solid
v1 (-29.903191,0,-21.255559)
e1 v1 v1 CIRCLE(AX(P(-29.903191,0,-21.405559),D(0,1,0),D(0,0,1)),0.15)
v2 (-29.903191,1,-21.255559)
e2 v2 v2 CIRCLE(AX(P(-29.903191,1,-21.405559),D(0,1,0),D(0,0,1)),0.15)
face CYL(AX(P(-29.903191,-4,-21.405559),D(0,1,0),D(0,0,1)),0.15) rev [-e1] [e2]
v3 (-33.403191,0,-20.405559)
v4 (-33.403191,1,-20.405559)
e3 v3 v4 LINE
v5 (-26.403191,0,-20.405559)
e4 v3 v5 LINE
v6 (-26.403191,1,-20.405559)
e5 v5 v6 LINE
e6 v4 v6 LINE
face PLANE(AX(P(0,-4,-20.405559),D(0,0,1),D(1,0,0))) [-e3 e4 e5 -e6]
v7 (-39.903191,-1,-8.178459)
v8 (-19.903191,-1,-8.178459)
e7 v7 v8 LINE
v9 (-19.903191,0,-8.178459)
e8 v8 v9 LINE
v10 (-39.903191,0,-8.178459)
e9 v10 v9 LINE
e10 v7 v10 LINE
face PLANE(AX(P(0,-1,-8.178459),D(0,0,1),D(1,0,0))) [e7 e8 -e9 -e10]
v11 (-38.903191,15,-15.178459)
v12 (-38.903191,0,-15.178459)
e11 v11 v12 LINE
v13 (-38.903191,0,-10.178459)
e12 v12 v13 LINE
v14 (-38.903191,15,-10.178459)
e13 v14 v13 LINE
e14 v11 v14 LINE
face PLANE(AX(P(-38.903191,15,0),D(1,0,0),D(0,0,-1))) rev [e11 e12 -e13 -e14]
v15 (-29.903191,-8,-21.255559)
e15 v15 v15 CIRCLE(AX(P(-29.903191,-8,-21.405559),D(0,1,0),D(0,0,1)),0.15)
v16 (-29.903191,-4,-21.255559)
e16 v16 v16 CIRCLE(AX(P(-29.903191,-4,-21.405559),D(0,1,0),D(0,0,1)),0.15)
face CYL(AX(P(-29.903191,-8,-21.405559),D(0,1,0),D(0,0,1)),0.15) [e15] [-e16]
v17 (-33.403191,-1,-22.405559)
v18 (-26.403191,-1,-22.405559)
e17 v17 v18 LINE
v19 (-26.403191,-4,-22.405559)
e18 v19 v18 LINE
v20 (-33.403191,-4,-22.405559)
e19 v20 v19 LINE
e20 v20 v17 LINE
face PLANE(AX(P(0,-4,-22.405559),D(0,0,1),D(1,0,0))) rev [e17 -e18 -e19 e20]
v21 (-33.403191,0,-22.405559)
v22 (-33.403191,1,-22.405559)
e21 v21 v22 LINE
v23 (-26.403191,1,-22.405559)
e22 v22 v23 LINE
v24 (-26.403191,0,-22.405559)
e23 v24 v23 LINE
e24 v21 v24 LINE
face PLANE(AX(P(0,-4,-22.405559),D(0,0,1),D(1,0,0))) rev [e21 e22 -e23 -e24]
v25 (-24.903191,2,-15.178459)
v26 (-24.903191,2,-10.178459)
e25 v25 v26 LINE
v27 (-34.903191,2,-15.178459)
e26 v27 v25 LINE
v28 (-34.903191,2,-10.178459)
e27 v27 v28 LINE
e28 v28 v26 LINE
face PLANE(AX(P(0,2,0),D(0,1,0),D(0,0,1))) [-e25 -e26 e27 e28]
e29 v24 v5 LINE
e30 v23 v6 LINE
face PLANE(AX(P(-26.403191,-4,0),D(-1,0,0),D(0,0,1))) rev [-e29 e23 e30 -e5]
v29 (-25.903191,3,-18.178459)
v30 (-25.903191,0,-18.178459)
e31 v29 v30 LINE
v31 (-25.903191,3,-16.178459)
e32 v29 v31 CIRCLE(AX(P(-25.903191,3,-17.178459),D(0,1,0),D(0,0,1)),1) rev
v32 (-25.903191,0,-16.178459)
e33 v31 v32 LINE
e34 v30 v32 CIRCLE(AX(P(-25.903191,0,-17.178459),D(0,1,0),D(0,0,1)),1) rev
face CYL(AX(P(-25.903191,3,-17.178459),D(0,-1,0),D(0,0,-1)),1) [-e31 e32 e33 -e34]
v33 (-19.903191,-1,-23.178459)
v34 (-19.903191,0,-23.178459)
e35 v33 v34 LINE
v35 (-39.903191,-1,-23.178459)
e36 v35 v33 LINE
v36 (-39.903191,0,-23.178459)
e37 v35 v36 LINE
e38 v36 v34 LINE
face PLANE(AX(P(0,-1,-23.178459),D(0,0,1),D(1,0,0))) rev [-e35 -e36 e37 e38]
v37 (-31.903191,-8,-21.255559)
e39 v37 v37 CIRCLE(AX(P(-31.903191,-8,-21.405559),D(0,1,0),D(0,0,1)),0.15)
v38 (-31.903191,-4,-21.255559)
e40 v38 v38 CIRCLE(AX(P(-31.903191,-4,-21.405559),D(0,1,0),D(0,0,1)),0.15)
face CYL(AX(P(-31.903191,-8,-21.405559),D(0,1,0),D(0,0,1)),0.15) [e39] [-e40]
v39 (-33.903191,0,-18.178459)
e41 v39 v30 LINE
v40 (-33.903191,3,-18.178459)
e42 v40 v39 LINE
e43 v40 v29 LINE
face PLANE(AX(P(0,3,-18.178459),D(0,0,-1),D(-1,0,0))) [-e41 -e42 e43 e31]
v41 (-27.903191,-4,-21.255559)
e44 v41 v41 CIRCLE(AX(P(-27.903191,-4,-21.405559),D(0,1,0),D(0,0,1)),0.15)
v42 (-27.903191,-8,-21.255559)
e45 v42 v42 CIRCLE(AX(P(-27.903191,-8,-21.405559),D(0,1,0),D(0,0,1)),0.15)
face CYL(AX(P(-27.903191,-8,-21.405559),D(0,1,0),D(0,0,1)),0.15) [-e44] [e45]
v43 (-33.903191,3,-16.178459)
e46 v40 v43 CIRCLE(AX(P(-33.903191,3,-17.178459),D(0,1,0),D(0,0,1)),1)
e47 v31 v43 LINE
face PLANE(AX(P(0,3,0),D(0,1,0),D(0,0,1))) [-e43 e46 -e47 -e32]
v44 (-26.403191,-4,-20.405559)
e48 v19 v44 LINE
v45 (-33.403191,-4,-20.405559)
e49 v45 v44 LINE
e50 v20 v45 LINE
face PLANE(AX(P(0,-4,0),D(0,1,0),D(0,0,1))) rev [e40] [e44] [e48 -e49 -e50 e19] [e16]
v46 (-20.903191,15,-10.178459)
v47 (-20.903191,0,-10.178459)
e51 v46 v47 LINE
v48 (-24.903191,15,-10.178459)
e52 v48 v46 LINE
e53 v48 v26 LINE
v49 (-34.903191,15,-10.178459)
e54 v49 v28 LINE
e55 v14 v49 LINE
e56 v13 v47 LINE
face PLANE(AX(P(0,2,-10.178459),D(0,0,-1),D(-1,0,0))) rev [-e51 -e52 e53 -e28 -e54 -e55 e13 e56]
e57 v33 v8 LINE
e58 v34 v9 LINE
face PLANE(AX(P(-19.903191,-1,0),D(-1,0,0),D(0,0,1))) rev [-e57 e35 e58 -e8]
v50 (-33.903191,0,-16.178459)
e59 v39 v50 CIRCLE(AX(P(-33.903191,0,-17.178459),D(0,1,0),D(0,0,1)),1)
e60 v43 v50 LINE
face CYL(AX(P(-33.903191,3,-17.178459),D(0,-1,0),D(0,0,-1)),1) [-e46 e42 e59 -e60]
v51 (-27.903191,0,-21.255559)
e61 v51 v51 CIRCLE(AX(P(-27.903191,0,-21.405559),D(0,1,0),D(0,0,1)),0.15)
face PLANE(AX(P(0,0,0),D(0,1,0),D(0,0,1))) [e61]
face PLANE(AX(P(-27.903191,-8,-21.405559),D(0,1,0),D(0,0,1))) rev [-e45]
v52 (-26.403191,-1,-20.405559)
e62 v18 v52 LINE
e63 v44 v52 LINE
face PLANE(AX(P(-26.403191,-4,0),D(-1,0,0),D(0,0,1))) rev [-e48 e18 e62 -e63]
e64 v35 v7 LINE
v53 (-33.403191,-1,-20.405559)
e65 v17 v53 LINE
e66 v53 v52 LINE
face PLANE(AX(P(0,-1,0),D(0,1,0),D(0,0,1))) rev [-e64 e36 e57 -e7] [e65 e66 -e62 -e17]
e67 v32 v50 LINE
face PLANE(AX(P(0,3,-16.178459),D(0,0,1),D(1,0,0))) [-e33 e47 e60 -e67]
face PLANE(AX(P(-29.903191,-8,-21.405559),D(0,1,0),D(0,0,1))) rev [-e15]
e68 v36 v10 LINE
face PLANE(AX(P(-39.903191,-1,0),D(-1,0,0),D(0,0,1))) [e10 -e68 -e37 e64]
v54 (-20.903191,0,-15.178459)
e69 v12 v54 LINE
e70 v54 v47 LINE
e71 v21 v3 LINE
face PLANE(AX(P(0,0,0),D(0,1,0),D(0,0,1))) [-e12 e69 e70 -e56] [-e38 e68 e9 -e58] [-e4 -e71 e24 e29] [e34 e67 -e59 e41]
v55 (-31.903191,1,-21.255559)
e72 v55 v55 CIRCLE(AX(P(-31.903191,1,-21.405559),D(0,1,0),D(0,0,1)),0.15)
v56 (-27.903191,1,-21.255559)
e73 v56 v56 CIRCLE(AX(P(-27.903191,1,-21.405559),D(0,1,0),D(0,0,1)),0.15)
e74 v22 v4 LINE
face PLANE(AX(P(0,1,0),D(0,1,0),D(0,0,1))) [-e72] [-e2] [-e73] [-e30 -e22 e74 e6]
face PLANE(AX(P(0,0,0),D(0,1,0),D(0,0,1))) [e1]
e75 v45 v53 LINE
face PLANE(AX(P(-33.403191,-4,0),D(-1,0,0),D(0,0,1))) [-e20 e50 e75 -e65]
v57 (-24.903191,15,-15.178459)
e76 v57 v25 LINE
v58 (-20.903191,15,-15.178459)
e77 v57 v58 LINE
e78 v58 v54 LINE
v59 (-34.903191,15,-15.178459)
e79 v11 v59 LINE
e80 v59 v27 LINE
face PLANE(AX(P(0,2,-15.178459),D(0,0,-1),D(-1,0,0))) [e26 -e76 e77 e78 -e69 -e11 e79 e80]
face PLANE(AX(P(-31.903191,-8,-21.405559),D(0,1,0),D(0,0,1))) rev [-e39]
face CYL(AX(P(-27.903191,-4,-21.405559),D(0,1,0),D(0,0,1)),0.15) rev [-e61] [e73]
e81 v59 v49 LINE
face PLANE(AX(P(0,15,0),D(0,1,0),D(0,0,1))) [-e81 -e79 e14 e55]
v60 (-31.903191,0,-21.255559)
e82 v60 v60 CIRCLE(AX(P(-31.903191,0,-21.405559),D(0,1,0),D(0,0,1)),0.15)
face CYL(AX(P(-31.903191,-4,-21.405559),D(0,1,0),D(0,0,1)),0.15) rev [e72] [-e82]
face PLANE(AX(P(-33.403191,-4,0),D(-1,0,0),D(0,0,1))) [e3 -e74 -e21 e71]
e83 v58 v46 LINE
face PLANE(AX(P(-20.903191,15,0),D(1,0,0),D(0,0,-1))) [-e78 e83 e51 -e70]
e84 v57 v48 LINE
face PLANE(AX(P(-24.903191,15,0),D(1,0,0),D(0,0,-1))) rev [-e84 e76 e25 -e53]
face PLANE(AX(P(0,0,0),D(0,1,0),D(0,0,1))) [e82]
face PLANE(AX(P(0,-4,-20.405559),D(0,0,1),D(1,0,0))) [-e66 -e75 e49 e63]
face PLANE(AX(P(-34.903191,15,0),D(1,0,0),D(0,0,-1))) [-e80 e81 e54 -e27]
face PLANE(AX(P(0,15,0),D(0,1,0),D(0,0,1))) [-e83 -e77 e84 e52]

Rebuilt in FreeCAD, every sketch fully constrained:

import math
import FreeCAD as App
import Part
import Sketcher
from FreeCAD import Vector

doc = App.newDocument("Part")
body = doc.addObject("PartDesign::Body", "Body")

# Sketch on XZ plane
sketch1 = body.newObject("Sketcher::SketchObject", "Sketch")
sketch1.AttachmentSupport = (doc.getObject("XZ_Plane"), [""])
sketch1.MapMode = "FlatFace"
sketch1.addGeometry([
    Part.LineSegment(Vector(-40, -23, 0), Vector(-40, -8, 0)),
    Part.LineSegment(Vector(-40, -8, 0), Vector(-20, -8, 0)),
    Part.LineSegment(Vector(-20, -8, 0), Vector(-20, -23, 0)),
    Part.LineSegment(Vector(-20, -23, 0), Vector(-40, -23, 0)),
], False)
sketch1.addConstraint([
    Sketcher.Constraint("Coincident", 0, 2, 1, 1),
    Sketcher.Constraint("Coincident", 1, 2, 2, 1),
    Sketcher.Constraint("Coincident", 2, 2, 3, 1),
    Sketcher.Constraint("Coincident", 3, 2, 0, 1),
    Sketcher.Constraint("Vertical", 0),
    Sketcher.Constraint("Horizontal", 1),
    Sketcher.Constraint("Vertical", 2),
    Sketcher.Constraint("Horizontal", 3),
    Sketcher.Constraint("DistanceX", 1, 1, 1, 2, 20.0),
    Sketcher.Constraint("DistanceY", 0, 1, 0, 2, 15.0),
    Sketcher.Constraint("DistanceX", 0, 2, -1, 1, 39.903191),
    Sketcher.Constraint("DistanceY", 0, 2, -1, 1, 8.178459),
])
pad1 = body.newObject("PartDesign::Pad", "Pad")
pad1.Profile = sketch1
pad1.Length = 1

# Sketch on XZ plane
sketch2 = body.newObject("Sketcher::SketchObject", "Sketch001")
sketch2.AttachmentSupport = (doc.getObject("XZ_Plane"), [""])
sketch2.MapMode = "FlatFace"
sketch2.addGeometry([
    Part.LineSegment(Vector(-35, -15, 0), Vector(-35, -10, 0)),
    Part.LineSegment(Vector(-35, -10, 0), Vector(-25, -10, 0)),
    Part.LineSegment(Vector(-25, -10, 0), Vector(-25, -15, 0)),
    Part.LineSegment(Vector(-25, -15, 0), Vector(-35, -15, 0)),
], False)
sketch2.addConstraint([
    Sketcher.Constraint("Coincident", 0, 2, 1, 1),
    Sketcher.Constraint("Coincident", 1, 2, 2, 1),
    Sketcher.Constraint("Coincident", 2, 2, 3, 1),
    Sketcher.Constraint("Coincident", 3, 2, 0, 1),
    Sketcher.Constraint("Vertical", 0),
    Sketcher.Constraint("Horizontal", 1),
    Sketcher.Constraint("Vertical", 2),
    Sketcher.Constraint("Horizontal", 3),
    Sketcher.Constraint("DistanceX", 1, 1, 1, 2, 10.0),
    Sketcher.Constraint("DistanceY", 0, 1, 0, 2, 5.0),
    Sketcher.Constraint("DistanceX", 0, 2, -1, 1, 34.903191),
    Sketcher.Constraint("DistanceY", 0, 2, -1, 1, 10.178459),
])
pad2 = body.newObject("PartDesign::Pad", "Pad001")
pad2.Profile = sketch2
pad2.Length = 2
pad2.Reversed = True

# Sketch on XZ plane
sketch3 = body.newObject("Sketcher::SketchObject", "Sketch002")
sketch3.AttachmentSupport = (doc.getObject("XZ_Plane"), [""])
sketch3.MapMode = "FlatFace"
sketch3.addGeometry([
    Part.LineSegment(Vector(-38.9, -15.2, 0), Vector(-38.9, -10.2, 0)),  # 0
    Part.LineSegment(Vector(-38.9, -10.2, 0), Vector(-34.9, -10.2, 0)),  # 1
    Part.LineSegment(Vector(-34.9, -10.2, 0), Vector(-34.9, -15.2, 0)),  # 2
    Part.LineSegment(Vector(-34.9, -15.2, 0), Vector(-38.9, -15.2, 0)),  # 3
    Part.LineSegment(Vector(-24.9, -15.2, 0), Vector(-24.9, -10.2, 0)),  # 4
    Part.LineSegment(Vector(-24.9, -10.2, 0), Vector(-20.9, -10.2, 0)),  # 5
    Part.LineSegment(Vector(-20.9, -10.2, 0), Vector(-20.9, -15.2, 0)),  # 6
    Part.LineSegment(Vector(-20.9, -15.2, 0), Vector(-24.9, -15.2, 0)),  # 7
], False)
sketch3.addConstraint([
    Sketcher.Constraint("Coincident", 0, 2, 1, 1),
    Sketcher.Constraint("Coincident", 1, 2, 2, 1),
    Sketcher.Constraint("Coincident", 2, 2, 3, 1),
    Sketcher.Constraint("Coincident", 3, 2, 0, 1),
    Sketcher.Constraint("Coincident", 4, 2, 5, 1),
    Sketcher.Constraint("Coincident", 5, 2, 6, 1),
    Sketcher.Constraint("Coincident", 6, 2, 7, 1),
    Sketcher.Constraint("Coincident", 7, 2, 4, 1),
    Sketcher.Constraint("Vertical", 0),
    Sketcher.Constraint("Horizontal", 1),
    Sketcher.Constraint("Vertical", 2),
    Sketcher.Constraint("Horizontal", 3),
    Sketcher.Constraint("Vertical", 4),
    Sketcher.Constraint("Horizontal", 5),
    Sketcher.Constraint("Vertical", 6),
    Sketcher.Constraint("Horizontal", 7),
    Sketcher.Constraint("Horizontal", 1, 2, 4, 2),
    Sketcher.Constraint("Horizontal", 3, 2, 6, 2),
    Sketcher.Constraint("Equal", 3, 5),
    Sketcher.Constraint("DistanceX", 1, 1, 1, 2, 4.0),
    Sketcher.Constraint("DistanceY", 0, 1, 0, 2, 5.0),
    Sketcher.Constraint("DistanceX", 1, 2, 4, 2, 10.0),
    Sketcher.Constraint("DistanceX", 0, 2, -1, 1, 38.903191),
    Sketcher.Constraint("DistanceY", 0, 2, -1, 1, 10.178459),
])
pad3 = body.newObject("PartDesign::Pad", "Pad002")
pad3.Profile = sketch3
pad3.Length = 15
pad3.Reversed = True

# Sketch on XZ plane
sketch4 = body.newObject("Sketcher::SketchObject", "Sketch003")
sketch4.AttachmentSupport = (doc.getObject("XZ_Plane"), [""])
sketch4.MapMode = "FlatFace"
sketch4.addGeometry([
    Part.ArcOfCircle(Part.Circle(Vector(-25.9, -17.2, 0), Vector(0, 0, 1), 1), math.radians(-90), math.radians(90)),
    Part.LineSegment(Vector(-25.9, -18.2, 0), Vector(-33.9, -18.2, 0)),
    Part.ArcOfCircle(Part.Circle(Vector(-33.9, -17.2, 0), Vector(0, 0, 1), 1), math.radians(90), math.radians(270)),
    Part.LineSegment(Vector(-33.9, -16.2, 0), Vector(-25.9, -16.2, 0)),
], False)
sketch4.addConstraint([
    Sketcher.Constraint("Tangent", 0, 1, 1, 1),
    Sketcher.Constraint("Tangent", 1, 2, 2, 2),
    Sketcher.Constraint("Tangent", 2, 1, 3, 1),
    Sketcher.Constraint("Tangent", 3, 2, 0, 2),
    Sketcher.Constraint("Horizontal", 1),
    Sketcher.Constraint("Horizontal", 3),
    Sketcher.Constraint("Radius", 0, 1.0),
    Sketcher.Constraint("DistanceX", 1, 2, 1, 1, 8.0),
    Sketcher.Constraint("DistanceX", 0, 3, -1, 1, 25.903191),
    Sketcher.Constraint("DistanceY", 0, 3, -1, 1, 17.178459),
])
pad4 = body.newObject("PartDesign::Pad", "Pad003")
pad4.Profile = sketch4
pad4.Length = 3
pad4.Reversed = True

# Sketch on XZ plane
sketch5 = body.newObject("Sketcher::SketchObject", "Sketch004")
sketch5.AttachmentSupport = (doc.getObject("XZ_Plane"), [""])
sketch5.MapMode = "FlatFace"
sketch5.addGeometry([
    Part.LineSegment(Vector(-33.4, -22.41, 0), Vector(-33.4, -20.41, 0)),  # 0
    Part.LineSegment(Vector(-33.4, -20.41, 0), Vector(-26.4, -20.41, 0)),  # 1
    Part.LineSegment(Vector(-26.4, -20.41, 0), Vector(-26.4, -22.41, 0)),  # 2
    Part.LineSegment(Vector(-26.4, -22.41, 0), Vector(-33.4, -22.41, 0)),  # 3
    Part.Circle(Vector(-31.9, -21.41, 0), Vector(0, 0, 1), 0.15),  # 4
    Part.Circle(Vector(-29.9, -21.41, 0), Vector(0, 0, 1), 0.15),  # 5
    Part.Circle(Vector(-27.9, -21.41, 0), Vector(0, 0, 1), 0.15),  # 6
], False)
sketch5.addConstraint([
    Sketcher.Constraint("Coincident", 0, 2, 1, 1),
    Sketcher.Constraint("Coincident", 1, 2, 2, 1),
    Sketcher.Constraint("Coincident", 2, 2, 3, 1),
    Sketcher.Constraint("Coincident", 3, 2, 0, 1),
    Sketcher.Constraint("Vertical", 0),
    Sketcher.Constraint("Horizontal", 1),
    Sketcher.Constraint("Vertical", 2),
    Sketcher.Constraint("Horizontal", 3),
    Sketcher.Constraint("Equal", 4, 5),
    Sketcher.Constraint("Equal", 5, 6),
    Sketcher.Constraint("Horizontal", 4, 3, 5, 3),
    Sketcher.Constraint("Horizontal", 5, 3, 6, 3),
    Sketcher.Constraint("Diameter", 4, 0.3),
    Sketcher.Constraint("DistanceX", 1, 1, 1, 2, 7.0),
    Sketcher.Constraint("DistanceY", 0, 1, 0, 2, 2.0),
    Sketcher.Constraint("DistanceX", 4, 3, 5, 3, 2.0),
    Sketcher.Constraint("DistanceX", 5, 3, 6, 3, 2.0),
    Sketcher.Constraint("DistanceY", 4, 3, 0, 2, 1.0),
    Sketcher.Constraint("DistanceX", 0, 2, 4, 3, 1.5),
    Sketcher.Constraint("DistanceX", 4, 3, -1, 1, 31.903191),
    Sketcher.Constraint("DistanceY", 4, 3, -1, 1, 21.405559),
])
pad5 = body.newObject("PartDesign::Pad", "Pad004")
pad5.Profile = sketch5
pad5.Type = "TwoLengths"
pad5.Length = 1
pad5.Length2 = 4
pad5.Reversed = True

# Sketch on XZ plane
sketch6 = body.newObject("Sketcher::SketchObject", "Sketch005")
sketch6.AttachmentSupport = (doc.getObject("XZ_Plane"), [""])
sketch6.MapMode = "FlatFace"
sketch6.addGeometry([
    Part.Circle(Vector(-31.9, -21.41, 0), Vector(0, 0, 1), 0.15),
    Part.Circle(Vector(-29.9, -21.41, 0), Vector(0, 0, 1), 0.15),
    Part.Circle(Vector(-27.9, -21.41, 0), Vector(0, 0, 1), 0.15),
], False)
sketch6.addConstraint([
    Sketcher.Constraint("Equal", 0, 1),
    Sketcher.Constraint("Equal", 1, 2),
    Sketcher.Constraint("Horizontal", 0, 3, 1, 3),
    Sketcher.Constraint("Horizontal", 1, 3, 2, 3),
    Sketcher.Constraint("Diameter", 0, 0.3),
    Sketcher.Constraint("DistanceX", 0, 3, 1, 3, 2.0),
    Sketcher.Constraint("DistanceX", 1, 3, 2, 3, 2.0),
    Sketcher.Constraint("DistanceX", 0, 3, -1, 1, 31.903191),
    Sketcher.Constraint("DistanceY", 0, 3, -1, 1, 21.405559),
])
pad6 = body.newObject("PartDesign::Pad", "Pad005")
pad6.Profile = sketch6
pad6.Length = 8

doc.recompute()
